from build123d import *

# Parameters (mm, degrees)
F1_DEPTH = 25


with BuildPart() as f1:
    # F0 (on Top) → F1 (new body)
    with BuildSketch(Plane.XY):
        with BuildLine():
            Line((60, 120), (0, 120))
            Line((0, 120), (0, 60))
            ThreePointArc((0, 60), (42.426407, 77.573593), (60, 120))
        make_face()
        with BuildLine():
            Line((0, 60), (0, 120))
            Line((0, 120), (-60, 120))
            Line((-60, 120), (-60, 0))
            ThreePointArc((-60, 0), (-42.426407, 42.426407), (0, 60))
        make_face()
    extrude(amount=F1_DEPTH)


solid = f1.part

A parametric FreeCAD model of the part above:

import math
import FreeCAD as App
import Part
import Sketcher

doc = App.newDocument("Part")
params = doc.addObject("Spreadsheet::Sheet", "Params")
for row, (alias, value) in enumerate([
    ("sketch1_radius", "60 mm"),
    ("pad1_length", "25 mm"),
], start=1):
    params.set(f"A{row}", alias)
    params.set(f"B{row}", "=" + value)
    params.setAlias(f"B{row}", alias)

body = doc.addObject("PartDesign::Body", "Body")

# Sketch on XY plane
sketch1 = body.newObject("Sketcher::SketchObject", "Sketch")
sketch1.AttachmentSupport = (doc.getObject("XY_Plane"), [""])
sketch1.MapMode = "FlatFace"
sketch1.addGeometry([
    Part.LineSegment(App.Vector(60, 120, 0), App.Vector(-60, 120, 0)),
    Part.LineSegment(App.Vector(-60, 120, 0), App.Vector(-60, 0, 0)),
    Part.ArcOfCircle(Part.Circle(App.Vector(0, 0, 0), App.Vector(0, 0, 1), 60), math.radians(90), math.radians(180)),
    Part.ArcOfCircle(Part.Circle(App.Vector(0, 120, 0), App.Vector(0, 0, 1), 60), math.radians(-90), math.radians(0)),
], False)
sketch1.addConstraint([
    Sketcher.Constraint("Coincident", 0, 2, 1, 1),
    Sketcher.Constraint("Tangent", 1, 2, 2, 2),
    Sketcher.Constraint("Tangent", 2, 1, 3, 1),
    Sketcher.Constraint("Coincident", 3, 2, 0, 1),
    Sketcher.Constraint("Horizontal", 0),
    Sketcher.Constraint("Vertical", 1),
    Sketcher.Constraint("Coincident", 2, 3, -1, 1),
    Sketcher.Constraint("Equal", 2, 3),
    Sketcher.Constraint("PointOnObject", 3, 3, -2),
    Sketcher.Constraint("Horizontal", 3, 3, 0, 2),
    Sketcher.Constraint("Radius", 2, 60.0),
])
sketch1.setExpression("Constraints[10]", "Params.sketch1_radius")
pad1 = body.newObject("PartDesign::Pad", "Pad")
pad1.Profile = sketch1
pad1.setExpression("Length", "Params.pad1_length")

doc.recompute()
